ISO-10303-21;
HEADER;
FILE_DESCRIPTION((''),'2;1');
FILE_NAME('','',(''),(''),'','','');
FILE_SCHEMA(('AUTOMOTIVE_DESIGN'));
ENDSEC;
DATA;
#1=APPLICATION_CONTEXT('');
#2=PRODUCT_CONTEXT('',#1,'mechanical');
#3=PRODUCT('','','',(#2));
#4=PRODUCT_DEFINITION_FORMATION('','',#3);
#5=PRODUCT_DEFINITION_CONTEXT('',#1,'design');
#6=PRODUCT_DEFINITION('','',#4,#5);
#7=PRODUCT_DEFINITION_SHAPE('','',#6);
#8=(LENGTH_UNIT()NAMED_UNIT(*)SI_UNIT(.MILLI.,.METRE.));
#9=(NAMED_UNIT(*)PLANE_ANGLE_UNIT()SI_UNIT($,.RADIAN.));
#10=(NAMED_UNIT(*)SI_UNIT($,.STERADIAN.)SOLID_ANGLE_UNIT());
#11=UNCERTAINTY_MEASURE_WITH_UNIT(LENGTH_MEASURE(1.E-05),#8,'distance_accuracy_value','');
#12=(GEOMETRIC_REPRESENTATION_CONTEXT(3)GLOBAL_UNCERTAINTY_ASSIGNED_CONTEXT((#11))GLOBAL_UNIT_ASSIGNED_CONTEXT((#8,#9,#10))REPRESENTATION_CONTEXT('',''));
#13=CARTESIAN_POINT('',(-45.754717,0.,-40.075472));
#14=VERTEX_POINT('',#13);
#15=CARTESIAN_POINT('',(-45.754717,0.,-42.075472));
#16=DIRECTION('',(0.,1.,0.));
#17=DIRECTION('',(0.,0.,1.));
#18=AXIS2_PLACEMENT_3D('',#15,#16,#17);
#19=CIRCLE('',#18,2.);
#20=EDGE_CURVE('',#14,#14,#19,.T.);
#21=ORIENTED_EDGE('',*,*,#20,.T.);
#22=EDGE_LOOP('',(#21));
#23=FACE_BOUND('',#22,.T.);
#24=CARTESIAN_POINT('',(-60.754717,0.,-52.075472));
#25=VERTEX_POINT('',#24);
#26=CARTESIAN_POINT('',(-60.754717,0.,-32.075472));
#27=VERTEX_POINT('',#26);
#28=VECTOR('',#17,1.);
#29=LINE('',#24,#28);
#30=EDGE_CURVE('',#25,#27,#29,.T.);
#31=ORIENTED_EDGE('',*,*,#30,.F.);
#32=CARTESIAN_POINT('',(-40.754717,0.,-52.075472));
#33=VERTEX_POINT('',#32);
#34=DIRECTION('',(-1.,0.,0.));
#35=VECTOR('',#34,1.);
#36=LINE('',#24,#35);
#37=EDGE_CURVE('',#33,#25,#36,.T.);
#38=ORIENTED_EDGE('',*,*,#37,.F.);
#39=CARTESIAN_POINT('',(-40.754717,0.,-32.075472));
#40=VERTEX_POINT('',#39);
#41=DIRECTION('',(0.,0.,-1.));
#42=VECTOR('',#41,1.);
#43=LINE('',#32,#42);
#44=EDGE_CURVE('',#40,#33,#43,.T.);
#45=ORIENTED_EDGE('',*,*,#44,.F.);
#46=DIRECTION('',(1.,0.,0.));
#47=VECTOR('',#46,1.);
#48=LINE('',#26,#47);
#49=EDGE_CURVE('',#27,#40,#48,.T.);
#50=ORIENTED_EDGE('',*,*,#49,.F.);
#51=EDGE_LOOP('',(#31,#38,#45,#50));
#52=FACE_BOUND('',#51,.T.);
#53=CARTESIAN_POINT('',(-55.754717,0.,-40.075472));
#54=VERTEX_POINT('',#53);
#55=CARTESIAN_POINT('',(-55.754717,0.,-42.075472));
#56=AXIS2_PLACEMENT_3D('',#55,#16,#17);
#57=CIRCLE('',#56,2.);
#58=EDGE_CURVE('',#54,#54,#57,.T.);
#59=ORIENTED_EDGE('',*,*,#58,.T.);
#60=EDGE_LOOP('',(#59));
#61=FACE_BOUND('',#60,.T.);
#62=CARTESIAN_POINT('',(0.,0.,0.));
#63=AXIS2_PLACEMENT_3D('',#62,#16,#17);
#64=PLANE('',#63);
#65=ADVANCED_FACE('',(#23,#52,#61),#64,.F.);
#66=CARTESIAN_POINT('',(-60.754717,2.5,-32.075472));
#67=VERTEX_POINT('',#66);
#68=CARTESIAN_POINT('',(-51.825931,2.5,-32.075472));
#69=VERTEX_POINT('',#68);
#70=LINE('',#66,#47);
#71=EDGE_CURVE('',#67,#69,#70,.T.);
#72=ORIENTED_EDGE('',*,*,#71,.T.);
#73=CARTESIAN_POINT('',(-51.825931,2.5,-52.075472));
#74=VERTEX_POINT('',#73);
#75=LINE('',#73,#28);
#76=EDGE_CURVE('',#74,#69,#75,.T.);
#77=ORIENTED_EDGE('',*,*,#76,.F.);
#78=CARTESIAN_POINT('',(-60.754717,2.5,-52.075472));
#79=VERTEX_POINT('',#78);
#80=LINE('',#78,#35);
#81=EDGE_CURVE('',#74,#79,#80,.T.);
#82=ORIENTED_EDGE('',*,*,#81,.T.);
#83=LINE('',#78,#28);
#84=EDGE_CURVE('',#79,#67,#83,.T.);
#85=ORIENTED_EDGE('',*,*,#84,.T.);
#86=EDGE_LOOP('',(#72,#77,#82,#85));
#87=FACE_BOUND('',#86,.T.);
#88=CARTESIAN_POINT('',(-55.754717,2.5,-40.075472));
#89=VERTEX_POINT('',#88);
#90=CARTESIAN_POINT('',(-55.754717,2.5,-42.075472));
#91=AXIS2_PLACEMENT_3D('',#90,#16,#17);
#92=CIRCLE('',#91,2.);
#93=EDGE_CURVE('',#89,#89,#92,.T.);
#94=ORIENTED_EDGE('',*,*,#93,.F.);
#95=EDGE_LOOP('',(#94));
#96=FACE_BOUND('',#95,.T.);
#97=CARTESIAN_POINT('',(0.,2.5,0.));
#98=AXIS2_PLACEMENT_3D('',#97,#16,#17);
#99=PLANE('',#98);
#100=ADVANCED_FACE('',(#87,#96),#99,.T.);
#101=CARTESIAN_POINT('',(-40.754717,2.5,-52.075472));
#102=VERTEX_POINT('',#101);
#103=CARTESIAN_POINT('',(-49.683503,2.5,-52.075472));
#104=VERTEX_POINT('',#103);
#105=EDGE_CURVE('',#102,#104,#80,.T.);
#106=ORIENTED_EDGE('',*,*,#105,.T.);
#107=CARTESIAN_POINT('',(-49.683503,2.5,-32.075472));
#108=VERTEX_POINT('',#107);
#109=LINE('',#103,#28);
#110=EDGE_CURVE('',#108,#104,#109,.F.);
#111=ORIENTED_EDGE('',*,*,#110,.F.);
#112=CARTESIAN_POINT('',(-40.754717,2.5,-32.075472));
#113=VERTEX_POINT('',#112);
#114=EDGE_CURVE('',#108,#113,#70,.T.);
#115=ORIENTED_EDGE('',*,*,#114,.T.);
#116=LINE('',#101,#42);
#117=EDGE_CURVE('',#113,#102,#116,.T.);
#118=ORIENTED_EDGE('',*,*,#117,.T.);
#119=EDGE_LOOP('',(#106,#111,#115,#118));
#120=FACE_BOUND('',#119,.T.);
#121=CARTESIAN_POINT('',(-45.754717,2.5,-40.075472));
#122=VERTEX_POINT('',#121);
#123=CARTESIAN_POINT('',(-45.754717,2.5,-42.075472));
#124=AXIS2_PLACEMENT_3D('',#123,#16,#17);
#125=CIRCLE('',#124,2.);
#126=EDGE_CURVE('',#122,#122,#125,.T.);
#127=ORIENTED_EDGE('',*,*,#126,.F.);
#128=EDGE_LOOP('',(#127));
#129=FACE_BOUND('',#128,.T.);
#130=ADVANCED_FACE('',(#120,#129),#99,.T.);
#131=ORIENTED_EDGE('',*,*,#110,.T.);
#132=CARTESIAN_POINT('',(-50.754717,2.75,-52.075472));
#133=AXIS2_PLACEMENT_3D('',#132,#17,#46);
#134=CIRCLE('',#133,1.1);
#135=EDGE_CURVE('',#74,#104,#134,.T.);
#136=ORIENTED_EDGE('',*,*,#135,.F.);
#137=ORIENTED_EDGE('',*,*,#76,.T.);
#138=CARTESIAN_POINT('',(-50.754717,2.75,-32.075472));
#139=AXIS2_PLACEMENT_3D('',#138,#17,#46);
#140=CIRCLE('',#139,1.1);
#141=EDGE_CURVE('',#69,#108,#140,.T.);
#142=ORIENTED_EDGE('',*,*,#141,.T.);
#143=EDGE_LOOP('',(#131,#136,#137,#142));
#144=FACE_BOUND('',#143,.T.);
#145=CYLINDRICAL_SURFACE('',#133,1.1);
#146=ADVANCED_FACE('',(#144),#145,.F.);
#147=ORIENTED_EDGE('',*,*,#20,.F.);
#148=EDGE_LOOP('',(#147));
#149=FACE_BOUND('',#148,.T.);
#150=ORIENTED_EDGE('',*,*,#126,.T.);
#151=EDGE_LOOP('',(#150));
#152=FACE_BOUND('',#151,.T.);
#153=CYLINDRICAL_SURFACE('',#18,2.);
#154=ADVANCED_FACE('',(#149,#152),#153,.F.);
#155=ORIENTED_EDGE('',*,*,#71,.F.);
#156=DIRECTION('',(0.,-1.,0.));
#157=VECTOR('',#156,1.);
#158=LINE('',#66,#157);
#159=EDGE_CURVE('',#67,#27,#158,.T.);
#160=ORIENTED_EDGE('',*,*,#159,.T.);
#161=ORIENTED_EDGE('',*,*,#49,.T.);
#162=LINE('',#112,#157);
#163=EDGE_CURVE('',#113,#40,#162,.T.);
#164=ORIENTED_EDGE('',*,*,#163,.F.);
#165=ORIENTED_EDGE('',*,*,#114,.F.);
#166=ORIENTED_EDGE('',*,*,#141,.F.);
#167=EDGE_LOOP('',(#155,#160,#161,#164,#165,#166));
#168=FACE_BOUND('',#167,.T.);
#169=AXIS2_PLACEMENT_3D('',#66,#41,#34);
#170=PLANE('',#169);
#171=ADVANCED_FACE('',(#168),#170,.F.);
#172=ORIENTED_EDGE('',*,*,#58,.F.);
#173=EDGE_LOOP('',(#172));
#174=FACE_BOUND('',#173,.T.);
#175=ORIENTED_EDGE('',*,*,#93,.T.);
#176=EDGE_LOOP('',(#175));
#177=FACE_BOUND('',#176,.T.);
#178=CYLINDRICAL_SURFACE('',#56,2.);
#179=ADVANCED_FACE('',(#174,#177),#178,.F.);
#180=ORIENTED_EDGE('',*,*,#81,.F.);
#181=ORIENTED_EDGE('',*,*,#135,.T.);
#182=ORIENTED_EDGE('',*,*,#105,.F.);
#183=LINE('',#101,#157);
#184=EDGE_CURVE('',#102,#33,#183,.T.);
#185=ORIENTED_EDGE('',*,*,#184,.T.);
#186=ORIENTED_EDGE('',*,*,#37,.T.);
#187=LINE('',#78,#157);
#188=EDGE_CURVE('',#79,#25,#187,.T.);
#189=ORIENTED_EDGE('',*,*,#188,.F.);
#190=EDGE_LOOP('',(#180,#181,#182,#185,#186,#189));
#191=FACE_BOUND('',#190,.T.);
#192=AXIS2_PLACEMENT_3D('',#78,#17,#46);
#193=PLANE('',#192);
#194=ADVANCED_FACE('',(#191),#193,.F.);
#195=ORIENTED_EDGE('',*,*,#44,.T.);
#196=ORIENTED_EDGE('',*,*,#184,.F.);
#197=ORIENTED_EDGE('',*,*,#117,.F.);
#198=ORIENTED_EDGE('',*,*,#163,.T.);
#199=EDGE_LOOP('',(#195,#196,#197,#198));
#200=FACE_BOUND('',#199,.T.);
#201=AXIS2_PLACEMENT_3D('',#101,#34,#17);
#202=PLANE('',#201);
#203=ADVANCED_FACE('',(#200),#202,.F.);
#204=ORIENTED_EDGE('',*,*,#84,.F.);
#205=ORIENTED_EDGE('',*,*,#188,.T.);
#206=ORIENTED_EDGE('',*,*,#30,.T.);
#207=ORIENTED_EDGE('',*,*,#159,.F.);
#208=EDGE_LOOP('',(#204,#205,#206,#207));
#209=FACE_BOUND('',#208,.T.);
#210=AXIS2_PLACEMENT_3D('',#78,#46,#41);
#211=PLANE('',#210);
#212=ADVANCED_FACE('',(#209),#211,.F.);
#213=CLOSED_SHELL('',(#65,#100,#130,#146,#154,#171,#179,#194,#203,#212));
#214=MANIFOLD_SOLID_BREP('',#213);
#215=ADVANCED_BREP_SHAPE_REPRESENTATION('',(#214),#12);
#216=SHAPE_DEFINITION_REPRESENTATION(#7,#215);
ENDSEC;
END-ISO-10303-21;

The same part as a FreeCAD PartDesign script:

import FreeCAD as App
import Part
import Sketcher

V = App.Vector


def add_polygon(sketch, points):
    """Adds a closed chain of lines whose ends are joined by coincident constraints."""
    first, n = sketch.GeometryCount, len(points)
    for a, b in zip(points, points[1:] + points[:1]):
        sketch.addGeometry(Part.LineSegment(App.Vector(*a, 0), App.Vector(*b, 0)), False)
    for i in range(n):
        sketch.addConstraint(Sketcher.Constraint("Coincident", first + i, 2, first + (i + 1) % n, 1))

doc = App.newDocument("Part")
body = doc.addObject("PartDesign::Body", "Body")

sketch1 = body.newObject("Sketcher::SketchObject", "Sketch")
sketch1.AttachmentSupport = (doc.getObject("XZ_Plane"), [""])
sketch1.MapMode = "FlatFace"
add_polygon(sketch1, [(-61, -52), (-61, -32), (-41, -32), (-41, -52)])
sketch1.addConstraint([
    Sketcher.Constraint("Vertical", 0),
    Sketcher.Constraint("Horizontal", 1),
    Sketcher.Constraint("Vertical", 2),
    Sketcher.Constraint("Horizontal", 3),
    Sketcher.Constraint("Equal", 3, 0),
    Sketcher.Constraint("DistanceX", 1, 1, 1, 2, 20.0),
    Sketcher.Constraint("DistanceY", 0, 2, -1, 1, 32.075472),
    Sketcher.Constraint("DistanceX", 0, 2, -1, 1, 60.754717),
])
pad1 = body.newObject("PartDesign::Pad", "Pad")
pad1.Profile = sketch1
pad1.Length = 2.5
pad1.Reversed = True

sketch2 = body.newObject("Sketcher::SketchObject", "Sketch001")
sketch2.AttachmentSupport = (doc.getObject("XY_Plane"), [""])
sketch2.MapMode = "FlatFace"
sketch2.AttachmentOffset = App.Placement(V(0, 0, -32.075472), App.Rotation())
sketch2.addGeometry(Part.Circle(V(-50.8, 2.8, 0), V(0, 0, 1), 1.1), False)
sketch2.addConstraint([
    Sketcher.Constraint("Diameter", 0, 2.2),
    Sketcher.Constraint("DistanceY", -1, 1, 0, 3, 2.75),
    Sketcher.Constraint("DistanceX", 0, 3, -1, 1, 50.754717),
])
pocket1 = body.newObject("PartDesign::Pocket", "Pocket")
pocket1.Profile = sketch2
pocket1.Type = "ThroughAll"

sketch3 = body.newObject("Sketcher::SketchObject", "Sketch002")
sketch3.AttachmentSupport = (doc.getObject("XZ_Plane"), [""])
sketch3.MapMode = "FlatFace"
sketch3.AttachmentOffset = App.Placement(V(0, 0, -2.5), App.Rotation())
sketch3.addGeometry([
    Part.Circle(V(-55.8, -42.1, 0), V(0, 0, 1), 2),
    Part.Circle(V(-45.8, -42.1, 0), V(0, 0, 1), 2),
], False)
sketch3.addConstraint([
    Sketcher.Constraint("Equal", 0, 1),
    Sketcher.Constraint("Horizontal", 0, 3, 1, 3),
    Sketcher.Constraint("Diameter", 0, 4.0),
    Sketcher.Constraint("DistanceX", 0, 3, 1, 3, 10.0),
    Sketcher.Constraint("DistanceY", 0, 3, -1, 1, 42.075472),
    Sketcher.Constraint("DistanceX", 0, 3, -1, 1, 55.754717),
])
pocket2 = body.newObject("PartDesign::Pocket", "Pocket001")
pocket2.Profile = sketch3
pocket2.Type = "ThroughAll"
pocket2.Reversed = True

doc.recompute()
